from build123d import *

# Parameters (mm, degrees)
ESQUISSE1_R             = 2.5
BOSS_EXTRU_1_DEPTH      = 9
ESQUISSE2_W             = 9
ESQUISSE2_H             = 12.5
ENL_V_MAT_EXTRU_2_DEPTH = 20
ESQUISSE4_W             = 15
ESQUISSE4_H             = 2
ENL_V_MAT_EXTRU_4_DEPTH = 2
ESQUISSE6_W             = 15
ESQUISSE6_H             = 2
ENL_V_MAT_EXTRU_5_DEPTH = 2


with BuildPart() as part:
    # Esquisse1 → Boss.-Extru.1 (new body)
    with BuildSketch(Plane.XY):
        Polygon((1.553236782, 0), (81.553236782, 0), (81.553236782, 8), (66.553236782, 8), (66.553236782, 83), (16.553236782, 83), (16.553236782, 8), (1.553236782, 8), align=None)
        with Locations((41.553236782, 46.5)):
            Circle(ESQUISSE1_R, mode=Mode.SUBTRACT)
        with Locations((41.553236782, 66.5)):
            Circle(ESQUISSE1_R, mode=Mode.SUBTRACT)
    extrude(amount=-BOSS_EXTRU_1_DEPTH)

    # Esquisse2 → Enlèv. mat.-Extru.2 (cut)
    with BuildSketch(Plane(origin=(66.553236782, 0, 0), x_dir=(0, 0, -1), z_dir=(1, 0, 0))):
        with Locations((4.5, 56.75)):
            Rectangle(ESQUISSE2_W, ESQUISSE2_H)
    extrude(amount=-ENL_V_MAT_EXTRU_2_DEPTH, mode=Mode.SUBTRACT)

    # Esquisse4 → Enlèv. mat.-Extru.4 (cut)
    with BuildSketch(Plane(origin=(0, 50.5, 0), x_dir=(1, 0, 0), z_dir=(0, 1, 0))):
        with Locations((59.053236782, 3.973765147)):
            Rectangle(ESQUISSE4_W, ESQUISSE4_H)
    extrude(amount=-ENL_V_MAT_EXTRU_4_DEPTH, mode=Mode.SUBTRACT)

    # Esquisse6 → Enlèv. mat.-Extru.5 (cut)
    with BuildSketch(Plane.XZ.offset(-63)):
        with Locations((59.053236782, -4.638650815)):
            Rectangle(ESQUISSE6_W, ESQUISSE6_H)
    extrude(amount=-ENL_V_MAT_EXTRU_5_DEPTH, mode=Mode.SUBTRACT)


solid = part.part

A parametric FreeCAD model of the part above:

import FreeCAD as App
import Part
import Sketcher
from FreeCAD import Vector
Q = App.Units.Quantity

doc = App.newDocument("Part")
body = doc.addObject("PartDesign::Body", "Body")

sketch1 = body.newObject("Sketcher::SketchObject", "Sketch")
sketch1.AttachmentSupport = (doc.getObject("XY_Plane"), [""])
sketch1.MapMode = "FlatFace"
sketch1.addGeometry([
    Part.LineSegment(Vector(1.6, 0, 0), Vector(81.6, 0, 0)),
    Part.LineSegment(Vector(81.6, 0, 0), Vector(81.6, 8, 0)),
    Part.LineSegment(Vector(81.6, 8, 0), Vector(66.6, 8, 0)),
    Part.LineSegment(Vector(66.6, 8, 0), Vector(66.6, 83, 0)),
    Part.LineSegment(Vector(66.6, 83, 0), Vector(16.6, 83, 0)),
    Part.LineSegment(Vector(16.6, 83, 0), Vector(16.6, 8, 0)),
    Part.LineSegment(Vector(16.6, 8, 0), Vector(1.6, 8, 0)),
    Part.LineSegment(Vector(1.6, 8, 0), Vector(1.6, 0, 0)),
    Part.Circle(Vector(41.6, 46.5, 0), Vector(0, 0, 1), 2.5),
    Part.Circle(Vector(41.6, 66.5, 0), Vector(0, 0, 1), 2.5),
], False)
sketch1.addConstraint([
    Sketcher.Constraint("Coincident", 0, 2, 1, 1),
    Sketcher.Constraint("Coincident", 1, 2, 2, 1),
    Sketcher.Constraint("Coincident", 2, 2, 3, 1),
    Sketcher.Constraint("Coincident", 3, 2, 4, 1),
    Sketcher.Constraint("Coincident", 4, 2, 5, 1),
    Sketcher.Constraint("Coincident", 5, 2, 6, 1),
    Sketcher.Constraint("Coincident", 6, 2, 7, 1),
    Sketcher.Constraint("Coincident", 7, 2, 0, 1),
    Sketcher.Constraint("Horizontal", 0),
    Sketcher.Constraint("Vertical", 1),
    Sketcher.Constraint("Horizontal", 2),
    Sketcher.Constraint("Vertical", 3),
    Sketcher.Constraint("Horizontal", 4),
    Sketcher.Constraint("Vertical", 5),
    Sketcher.Constraint("Horizontal", 6),
    Sketcher.Constraint("Vertical", 7),
    Sketcher.Constraint("Equal", 8, 9),
    Sketcher.Constraint("PointOnObject", 0, 2, -1),
    Sketcher.Constraint("Horizontal", 2, 2, 5, 2),
    Sketcher.Constraint("Vertical", 8, 3, 9, 3),
    Sketcher.Constraint("Equal", 2, 6),
    Sketcher.Constraint("Diameter", 8, Q("5 mm")),
    Sketcher.Constraint("DistanceX", 0, 1, 0, 2, Q("80 mm")),
    Sketcher.Constraint("DistanceX", 2, 2, 2, 1, Q("15 mm")),
    Sketcher.Constraint("DistanceY", 1, 1, 1, 2, Q("8 mm")),
    Sketcher.Constraint("DistanceY", 3, 1, 3, 2, Q("75 mm")),
    Sketcher.Constraint("DistanceY", 8, 3, 9, 3, Q("20 mm")),
    Sketcher.Constraint("DistanceX", 8, 3, 0, 2, Q("40 mm")),
    Sketcher.Constraint("DistanceY", -1, 1, 8, 3, Q("46.5 mm")),
    Sketcher.Constraint("DistanceX", -1, 1, 8, 3, Q("41.553237 mm")),
])
pad1 = body.newObject("PartDesign::Pad", "Pad")
pad1.Profile = sketch1
pad1.Length = 9
pad1.Reversed = True

sketch2 = body.newObject("Sketcher::SketchObject", "Sketch001")
sketch2.AttachmentSupport = (doc.getObject("YZ_Plane"), [""])
sketch2.MapMode = "FlatFace"
sketch2.AttachmentOffset = App.Placement(Vector(0, 0, 66.553237), App.Rotation())
sketch2.addGeometry([
    Part.LineSegment(Vector(63, 0, 0), Vector(50, 0, 0)),
    Part.LineSegment(Vector(50, 0, 0), Vector(50, -9, 0)),
    Part.LineSegment(Vector(50, -9, 0), Vector(63, -9, 0)),
    Part.LineSegment(Vector(63, -9, 0), Vector(63, 0, 0)),
], False)
sketch2.addConstraint([
    Sketcher.Constraint("Coincident", 0, 2, 1, 1),
    Sketcher.Constraint("Coincident", 1, 2, 2, 1),
    Sketcher.Constraint("Coincident", 2, 2, 3, 1),
    Sketcher.Constraint("Coincident", 3, 2, 0, 1),
    Sketcher.Constraint("Horizontal", 0),
    Sketcher.Constraint("Vertical", 1),
    Sketcher.Constraint("Horizontal", 2),
    Sketcher.Constraint("Vertical", 3),
    Sketcher.Constraint("PointOnObject", 0, 2, -1),
    Sketcher.Constraint("DistanceY", 1, 2, 1, 1, Q("9 mm")),
    Sketcher.Constraint("DistanceX", 0, 2, 0, 1, Q("12.5 mm")),
    Sketcher.Constraint("DistanceX", -1, 1, 2, 2, Q("63 mm")),
])
pocket1 = body.newObject("PartDesign::Pocket", "Pocket")
pocket1.Profile = sketch2
pocket1.Length = 20

sketch3 = body.newObject("Sketcher::SketchObject", "Sketch002")
sketch3.AttachmentSupport = (doc.getObject("XZ_Plane"), [""])
sketch3.MapMode = "FlatFace"
sketch3.AttachmentOffset = App.Placement(Vector(0, 0, -50.5), App.Rotation())
sketch3.addGeometry([
    Part.LineSegment(Vector(51.6, -5, 0), Vector(51.6, -3, 0)),
    Part.LineSegment(Vector(51.6, -3, 0), Vector(66.6, -3, 0)),
    Part.LineSegment(Vector(66.6, -3, 0), Vector(66.6, -5, 0)),
    Part.LineSegment(Vector(66.6, -5, 0), Vector(51.6, -5, 0)),
], False)
sketch3.addConstraint([
    Sketcher.Constraint("Coincident", 0, 2, 1, 1),
    Sketcher.Constraint("Coincident", 1, 2, 2, 1),
    Sketcher.Constraint("Coincident", 2, 2, 3, 1),
    Sketcher.Constraint("Coincident", 3, 2, 0, 1),
    Sketcher.Constraint("Vertical", 0),
    Sketcher.Constraint("Horizontal", 1),
    Sketcher.Constraint("Vertical", 2),
    Sketcher.Constraint("Horizontal", 3),
    Sketcher.Constraint("DistanceX", 1, 1, 1, 2, Q("15 mm")),
    Sketcher.Constraint("DistanceY", 0, 1, 0, 2, Q("2 mm")),
    Sketcher.Constraint("DistanceX", -1, 1, 0, 2, Q("51.553237 mm")),
    Sketcher.Constraint("DistanceY", 0, 2, -1, 1, Q("2.973765 mm")),
])
pocket2 = body.newObject("PartDesign::Pocket", "Pocket001")
pocket2.Profile = sketch3
pocket2.Length = 2
pocket2.Reversed = True

sketch4 = body.newObject("Sketcher::SketchObject", "Sketch003")
sketch4.AttachmentSupport = (doc.getObject("XZ_Plane"), [""])
sketch4.MapMode = "FlatFace"
sketch4.AttachmentOffset = App.Placement(Vector(0, 0, -63), App.Rotation())
sketch4.addGeometry([
    Part.LineSegment(Vector(51.6, -3.6, 0), Vector(51.6, -5.6, 0)),
    Part.LineSegment(Vector(51.6, -5.6, 0), Vector(66.6, -5.6, 0)),
    Part.LineSegment(Vector(66.6, -5.6, 0), Vector(66.6, -3.6, 0)),
    Part.LineSegment(Vector(66.6, -3.6, 0), Vector(51.6, -3.6, 0)),
], False)
sketch4.addConstraint([
    Sketcher.Constraint("Coincident", 0, 2, 1, 1),
    Sketcher.Constraint("Coincident", 1, 2, 2, 1),
    Sketcher.Constraint("Coincident", 2, 2, 3, 1),
    Sketcher.Constraint("Coincident", 3, 2, 0, 1),
    Sketcher.Constraint("Vertical", 0),
    Sketcher.Constraint("Horizontal", 1),
    Sketcher.Constraint("Vertical", 2),
    Sketcher.Constraint("Horizontal", 3),
    Sketcher.Constraint("DistanceX", 1, 1, 1, 2, Q("15 mm")),
    Sketcher.Constraint("DistanceY", 0, 2, 0, 1, Q("2 mm")),
    Sketcher.Constraint("DistanceY", 0, 2, -1, 1, Q("5.638651 mm")),
    Sketcher.Constraint("DistanceX", -1, 1, 0, 2, Q("51.553237 mm")),
])
pocket3 = body.newObject("PartDesign::Pocket", "Pocket002")
pocket3.Profile = sketch4
pocket3.Length = 2

doc.recompute()
